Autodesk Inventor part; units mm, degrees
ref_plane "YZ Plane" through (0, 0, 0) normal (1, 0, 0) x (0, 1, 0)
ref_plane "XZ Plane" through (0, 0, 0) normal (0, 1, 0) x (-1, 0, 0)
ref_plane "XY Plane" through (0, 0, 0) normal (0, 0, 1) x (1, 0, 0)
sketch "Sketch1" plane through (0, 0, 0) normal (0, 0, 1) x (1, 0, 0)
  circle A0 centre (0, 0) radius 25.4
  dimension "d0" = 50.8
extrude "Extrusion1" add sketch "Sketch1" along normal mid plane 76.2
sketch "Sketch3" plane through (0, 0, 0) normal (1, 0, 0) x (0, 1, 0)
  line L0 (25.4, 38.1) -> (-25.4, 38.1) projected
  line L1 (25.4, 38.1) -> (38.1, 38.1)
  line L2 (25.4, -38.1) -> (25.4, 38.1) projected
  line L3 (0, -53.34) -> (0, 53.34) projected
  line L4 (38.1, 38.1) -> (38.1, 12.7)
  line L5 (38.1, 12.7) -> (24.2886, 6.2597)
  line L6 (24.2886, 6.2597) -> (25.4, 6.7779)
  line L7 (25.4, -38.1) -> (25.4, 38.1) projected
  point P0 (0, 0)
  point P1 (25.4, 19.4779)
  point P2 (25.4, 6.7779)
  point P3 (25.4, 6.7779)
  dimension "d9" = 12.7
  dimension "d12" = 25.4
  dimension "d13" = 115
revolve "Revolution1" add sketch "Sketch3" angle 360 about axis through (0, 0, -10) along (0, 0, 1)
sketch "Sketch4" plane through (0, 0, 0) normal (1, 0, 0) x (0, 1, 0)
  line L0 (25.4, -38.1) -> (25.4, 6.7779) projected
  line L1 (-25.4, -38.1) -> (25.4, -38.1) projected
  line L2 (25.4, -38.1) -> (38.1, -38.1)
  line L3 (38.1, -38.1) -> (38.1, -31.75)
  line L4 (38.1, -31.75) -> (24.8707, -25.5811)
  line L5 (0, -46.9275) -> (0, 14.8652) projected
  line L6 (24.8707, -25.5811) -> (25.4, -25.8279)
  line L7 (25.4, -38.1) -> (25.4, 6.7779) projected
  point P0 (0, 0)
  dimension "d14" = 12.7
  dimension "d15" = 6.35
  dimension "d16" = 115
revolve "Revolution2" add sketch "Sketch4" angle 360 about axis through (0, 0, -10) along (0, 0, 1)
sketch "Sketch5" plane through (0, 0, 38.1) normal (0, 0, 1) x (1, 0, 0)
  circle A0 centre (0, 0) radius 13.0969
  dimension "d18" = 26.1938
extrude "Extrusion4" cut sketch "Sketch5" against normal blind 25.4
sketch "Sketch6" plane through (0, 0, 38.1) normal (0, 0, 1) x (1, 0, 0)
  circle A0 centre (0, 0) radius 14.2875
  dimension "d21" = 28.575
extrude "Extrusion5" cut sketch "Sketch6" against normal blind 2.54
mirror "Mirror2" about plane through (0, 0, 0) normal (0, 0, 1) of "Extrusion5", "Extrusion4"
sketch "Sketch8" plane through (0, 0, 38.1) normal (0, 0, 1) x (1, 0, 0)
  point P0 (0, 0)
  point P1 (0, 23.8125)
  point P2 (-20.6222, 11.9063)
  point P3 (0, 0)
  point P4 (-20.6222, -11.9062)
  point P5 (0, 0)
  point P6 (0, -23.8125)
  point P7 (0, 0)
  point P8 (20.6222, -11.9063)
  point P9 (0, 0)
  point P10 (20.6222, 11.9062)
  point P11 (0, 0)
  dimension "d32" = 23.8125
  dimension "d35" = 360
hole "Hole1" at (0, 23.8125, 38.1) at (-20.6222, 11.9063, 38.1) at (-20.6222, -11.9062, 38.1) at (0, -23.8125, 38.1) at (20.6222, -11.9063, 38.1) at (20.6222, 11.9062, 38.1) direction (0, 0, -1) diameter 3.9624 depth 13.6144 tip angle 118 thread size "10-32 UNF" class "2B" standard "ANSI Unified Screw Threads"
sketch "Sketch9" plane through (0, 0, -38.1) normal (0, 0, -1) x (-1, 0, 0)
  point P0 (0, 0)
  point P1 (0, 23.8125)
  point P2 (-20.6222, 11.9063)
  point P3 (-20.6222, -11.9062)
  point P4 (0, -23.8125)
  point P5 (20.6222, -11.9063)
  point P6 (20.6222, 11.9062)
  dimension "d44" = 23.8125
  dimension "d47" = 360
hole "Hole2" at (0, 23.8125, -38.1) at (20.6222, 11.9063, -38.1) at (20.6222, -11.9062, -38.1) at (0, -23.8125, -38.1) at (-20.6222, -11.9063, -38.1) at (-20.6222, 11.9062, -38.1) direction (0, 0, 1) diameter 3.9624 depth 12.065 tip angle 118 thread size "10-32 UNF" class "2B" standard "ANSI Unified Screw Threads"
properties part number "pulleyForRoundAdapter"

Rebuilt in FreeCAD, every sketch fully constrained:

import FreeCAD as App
import Part
import Sketcher
from FreeCAD import Vector
Q = App.Units.Quantity


def add_polygon(sketch, points):
    """Adds a closed chain of lines whose ends are joined by coincident constraints."""
    first, n = sketch.GeometryCount, len(points)
    for a, b in zip(points, points[1:] + points[:1]):
        sketch.addGeometry(Part.LineSegment(App.Vector(*a, 0), App.Vector(*b, 0)), False)
    for i in range(n):
        sketch.addConstraint(Sketcher.Constraint("Coincident", first + i, 2, first + (i + 1) % n, 1))

doc = App.newDocument("Part")
body = doc.addObject("PartDesign::Body", "Body")

sketch1 = doc.addObject("Sketcher::SketchObject", "Sketch")
body.addObject(sketch1)
sketch1.AttachmentSupport = (doc.XY_Plane, [""])
sketch1.MapMode = "FlatFace"
sketch1.addGeometry(Part.Circle(Vector(0, 0, 0), Vector(0, 0, 1), 25), False)
sketch1.addConstraint(Sketcher.Constraint("Coincident", 0, 3, -1, 1))
sketch1.addConstraint(Sketcher.Constraint("Diameter", 0, Q("2 in")))
pad1 = doc.addObject("PartDesign::Pad", "Pad")
body.addObject(pad1)
pad1.Profile = sketch1
pad1.Length = Q("3 in")
pad1.Midplane = True

sketch2 = doc.addObject("Sketcher::SketchObject", "Sketch001")
body.addObject(sketch2)
sketch2.AttachmentSupport = (doc.YZ_Plane, [""])
sketch2.MapMode = "FlatFace"
add_polygon(sketch2, [(38, 38), (25, 38), (25, 7), (38, 13)])
sketch2.addConstraint(Sketcher.Constraint("Horizontal", 0))
sketch2.addConstraint(Sketcher.Constraint("Vertical", 1))
sketch2.addConstraint(Sketcher.Constraint("Vertical", 3))
sketch2.addConstraint(Sketcher.Constraint("DistanceY", 3, 1, 3, 2, Q("1 in")))
sketch2.addConstraint(Sketcher.Constraint("DistanceX", 0, 2, 0, 1, Q("0.5 in")))
sketch2.addConstraint(Sketcher.Constraint("DistanceX", -1, 1, 0, 2, Q("1 in")))
sketch2.addConstraint(Sketcher.Constraint("DistanceY", -1, 1, 2, 2, Q("0.5 in")))
sketch2.addConstraint(Sketcher.Constraint("Angle", 2, Q("24.9998 deg")))
revolution = doc.addObject("PartDesign::Revolution", "Revolution")
body.addObject(revolution)
revolution.Profile = sketch2
revolution.ReferenceAxis = (sketch2, ["V_Axis"])
revolution.Angle = 360

sketch3 = doc.addObject("Sketcher::SketchObject", "Sketch002")
body.addObject(sketch3)
sketch3.AttachmentSupport = (doc.YZ_Plane, [""])
sketch3.MapMode = "FlatFace"
add_polygon(sketch3, [(25, -26), (25, -38), (38, -38), (38, -32)])
sketch3.addConstraint(Sketcher.Constraint("Vertical", 0))
sketch3.addConstraint(Sketcher.Constraint("Horizontal", 1))
sketch3.addConstraint(Sketcher.Constraint("Vertical", 2))
sketch3.addConstraint(Sketcher.Constraint("DistanceX", 1, 1, 1, 2, Q("0.5 in")))
sketch3.addConstraint(Sketcher.Constraint("DistanceY", 2, 1, 2, 2, Q("0.25 in")))
sketch3.addConstraint(Sketcher.Constraint("DistanceX", -1, 1, 0, 2, Q("1 in")))
sketch3.addConstraint(Sketcher.Constraint("Angle", 3, Q("155 deg")))
sketch3.addConstraint(Sketcher.Constraint("DistanceY", 0, 2, -1, 1, Q("1.5 in")))
revolution2 = doc.addObject("PartDesign::Revolution", "Revolution001")
body.addObject(revolution2)
revolution2.Profile = sketch3
revolution2.ReferenceAxis = (sketch3, ["V_Axis"])
revolution2.Angle = 360

sketch4 = doc.addObject("Sketcher::SketchObject", "Sketch003")
body.addObject(sketch4)
sketch4.AttachmentSupport = (doc.XY_Plane, [""])
sketch4.MapMode = "FlatFace"
sketch4.AttachmentOffset = App.Placement(Vector(0, 0, 1.5 * 25.4), App.Rotation())
sketch4.addGeometry(Part.Circle(Vector(0, 0, 0), Vector(0, 0, 1), 13), False)
sketch4.addConstraint(Sketcher.Constraint("Coincident", 0, 3, -1, 1))
sketch4.addConstraint(Sketcher.Constraint("Diameter", 0, Q("1.031252 in")))
pocket1 = doc.addObject("PartDesign::Pocket", "Pocket")
body.addObject(pocket1)
pocket1.Profile = sketch4
pocket1.Length = Q("1 in")

sketch5 = doc.addObject("Sketcher::SketchObject", "Sketch004")
body.addObject(sketch5)
sketch5.AttachmentSupport = (doc.XY_Plane, [""])
sketch5.MapMode = "FlatFace"
sketch5.AttachmentOffset = App.Placement(Vector(0, 0, 1.5 * 25.4), App.Rotation())
sketch5.addGeometry(Part.Circle(Vector(0, 0, 0), Vector(0, 0, 1), 14), False)
sketch5.addConstraint(Sketcher.Constraint("Coincident", 0, 3, -1, 1))
sketch5.addConstraint(Sketcher.Constraint("Diameter", 0, Q("1.125 in")))
pocket2 = doc.addObject("PartDesign::Pocket", "Pocket001")
body.addObject(pocket2)
pocket2.Profile = sketch5
pocket2.Length = Q("0.1 in")
doc.recompute()

mirrored = doc.addObject("PartDesign::Mirrored", "Mirrored")
body.addObject(mirrored)
mirrored.Originals = [pocket2, pocket1]
mirrored.MirrorPlane = (doc.XY_Plane, [""])
body.Tip = mirrored

sketch6 = doc.addObject("Sketcher::SketchObject", "Sketch005")
body.addObject(sketch6)
sketch6.AttachmentSupport = (doc.XY_Plane, [""])
sketch6.MapMode = "FlatFace"
sketch6.AttachmentOffset = App.Placement(Vector(0, 0, 1.5 * 25.4), App.Rotation())
sketch6.addGeometry(Part.Circle(Vector(0, 23.8, 0), Vector(0, 0, 1), 2), False)
sketch6.addGeometry(Part.Circle(Vector(-20.6, 11.9, 0), Vector(0, 0, 1), 2), False)
sketch6.addGeometry(Part.Circle(Vector(-20.6, -11.9, 0), Vector(0, 0, 1), 2), False)
sketch6.addGeometry(Part.Circle(Vector(0, -23.8, 0), Vector(0, 0, 1), 2), False)
sketch6.addGeometry(Part.Circle(Vector(20.6, -11.9, 0), Vector(0, 0, 1), 2), False)
sketch6.addGeometry(Part.Circle(Vector(20.6, 11.9, 0), Vector(0, 0, 1), 2), False)
sketch6.addConstraint(Sketcher.Constraint("Equal", 0, 1))
sketch6.addConstraint(Sketcher.Constraint("Equal", 1, 2))
sketch6.addConstraint(Sketcher.Constraint("Equal", 2, 3))
sketch6.addConstraint(Sketcher.Constraint("Equal", 3, 4))
sketch6.addConstraint(Sketcher.Constraint("Equal", 4, 5))
sketch6.addConstraint(Sketcher.Constraint("Symmetric", 0, 3, 3, 3, -1, 1))
sketch6.addConstraint(Sketcher.Constraint("Symmetric", 1, 3, 4, 3, -1, 1))
sketch6.addConstraint(Sketcher.Constraint("Symmetric", 2, 3, 5, 3, -1, 1))
sketch6.addConstraint(Sketcher.Constraint("Symmetric", 2, 3, 4, 3, -2))
sketch6.addConstraint(Sketcher.Constraint("PointOnObject", 0, 3, -2))
sketch6.addConstraint(Sketcher.Constraint("Diameter", 0, Q("0.156 in")))
sketch6.addConstraint(Sketcher.Constraint("DistanceY", -1, 1, 0, 3, Q("0.9375 in")))
sketch6.addConstraint(Sketcher.Constraint("DistanceY", -1, 1, 1, 3, Q("0.468752 in")))
sketch6.addConstraint(Sketcher.Constraint("DistanceX", 1, 3, -1, 1, Q("0.8119 in")))
doc.recompute()
hole = doc.addObject("PartDesign::Hole", "Hole")
body.addObject(hole)
hole.Profile = sketch6
hole.ThreadType = "None"
hole.Diameter = Q("0.156 in")
hole.DepthType = "Dimension"
hole.Depth = Q("0.536 in")
hole.DrillPoint = "Angled"
hole.DrillPointAngle = 118

sketch7 = doc.addObject("Sketcher::SketchObject", "Sketch006")
body.addObject(sketch7)
sketch7.AttachmentSupport = (doc.XY_Plane, [""])
sketch7.MapMode = "FlatFace"
sketch7.AttachmentOffset = App.Placement(Vector(0, 0, -1.5 * 25.4), App.Rotation())
sketch7.addGeometry(Part.Circle(Vector(0, 23.8, 0), Vector(0, 0, 1), 2), False)
sketch7.addGeometry(Part.Circle(Vector(20.6, 11.9, 0), Vector(0, 0, 1), 2), False)
sketch7.addGeometry(Part.Circle(Vector(20.6, -11.9, 0), Vector(0, 0, 1), 2), False)
sketch7.addGeometry(Part.Circle(Vector(0, -23.8, 0), Vector(0, 0, 1), 2), False)
sketch7.addGeometry(Part.Circle(Vector(-20.6, -11.9, 0), Vector(0, 0, 1), 2), False)
sketch7.addGeometry(Part.Circle(Vector(-20.6, 11.9, 0), Vector(0, 0, 1), 2), False)
sketch7.addConstraint(Sketcher.Constraint("Equal", 0, 1))
sketch7.addConstraint(Sketcher.Constraint("Equal", 1, 2))
sketch7.addConstraint(Sketcher.Constraint("Equal", 2, 3))
sketch7.addConstraint(Sketcher.Constraint("Equal", 3, 4))
sketch7.addConstraint(Sketcher.Constraint("Equal", 4, 5))
sketch7.addConstraint(Sketcher.Constraint("Symmetric", 0, 3, 3, 3, -1, 1))
sketch7.addConstraint(Sketcher.Constraint("Symmetric", 1, 3, 4, 3, -1, 1))
sketch7.addConstraint(Sketcher.Constraint("Symmetric", 2, 3, 5, 3, -1, 1))
sketch7.addConstraint(Sketcher.Constraint("Symmetric", 2, 3, 4, 3, -2))
sketch7.addConstraint(Sketcher.Constraint("PointOnObject", 0, 3, -2))
sketch7.addConstraint(Sketcher.Constraint("Diameter", 0, Q("0.156 in")))
sketch7.addConstraint(Sketcher.Constraint("DistanceY", -1, 1, 0, 3, Q("0.9375 in")))
sketch7.addConstraint(Sketcher.Constraint("DistanceY", -1, 1, 1, 3, Q("0.468752 in")))
sketch7.addConstraint(Sketcher.Constraint("DistanceX", -1, 1, 1, 3, Q("0.8119 in")))
doc.recompute()
hole2 = doc.addObject("PartDesign::Hole", "Hole001")
body.addObject(hole2)
hole2.Profile = sketch7
hole2.ThreadType = "None"
hole2.Diameter = Q("0.156 in")
hole2.DepthType = "Dimension"
hole2.Depth = Q("0.475 in")
hole2.DrillPoint = "Angled"
hole2.DrillPointAngle = 118
hole2.Reversed = True

doc.recompute()
